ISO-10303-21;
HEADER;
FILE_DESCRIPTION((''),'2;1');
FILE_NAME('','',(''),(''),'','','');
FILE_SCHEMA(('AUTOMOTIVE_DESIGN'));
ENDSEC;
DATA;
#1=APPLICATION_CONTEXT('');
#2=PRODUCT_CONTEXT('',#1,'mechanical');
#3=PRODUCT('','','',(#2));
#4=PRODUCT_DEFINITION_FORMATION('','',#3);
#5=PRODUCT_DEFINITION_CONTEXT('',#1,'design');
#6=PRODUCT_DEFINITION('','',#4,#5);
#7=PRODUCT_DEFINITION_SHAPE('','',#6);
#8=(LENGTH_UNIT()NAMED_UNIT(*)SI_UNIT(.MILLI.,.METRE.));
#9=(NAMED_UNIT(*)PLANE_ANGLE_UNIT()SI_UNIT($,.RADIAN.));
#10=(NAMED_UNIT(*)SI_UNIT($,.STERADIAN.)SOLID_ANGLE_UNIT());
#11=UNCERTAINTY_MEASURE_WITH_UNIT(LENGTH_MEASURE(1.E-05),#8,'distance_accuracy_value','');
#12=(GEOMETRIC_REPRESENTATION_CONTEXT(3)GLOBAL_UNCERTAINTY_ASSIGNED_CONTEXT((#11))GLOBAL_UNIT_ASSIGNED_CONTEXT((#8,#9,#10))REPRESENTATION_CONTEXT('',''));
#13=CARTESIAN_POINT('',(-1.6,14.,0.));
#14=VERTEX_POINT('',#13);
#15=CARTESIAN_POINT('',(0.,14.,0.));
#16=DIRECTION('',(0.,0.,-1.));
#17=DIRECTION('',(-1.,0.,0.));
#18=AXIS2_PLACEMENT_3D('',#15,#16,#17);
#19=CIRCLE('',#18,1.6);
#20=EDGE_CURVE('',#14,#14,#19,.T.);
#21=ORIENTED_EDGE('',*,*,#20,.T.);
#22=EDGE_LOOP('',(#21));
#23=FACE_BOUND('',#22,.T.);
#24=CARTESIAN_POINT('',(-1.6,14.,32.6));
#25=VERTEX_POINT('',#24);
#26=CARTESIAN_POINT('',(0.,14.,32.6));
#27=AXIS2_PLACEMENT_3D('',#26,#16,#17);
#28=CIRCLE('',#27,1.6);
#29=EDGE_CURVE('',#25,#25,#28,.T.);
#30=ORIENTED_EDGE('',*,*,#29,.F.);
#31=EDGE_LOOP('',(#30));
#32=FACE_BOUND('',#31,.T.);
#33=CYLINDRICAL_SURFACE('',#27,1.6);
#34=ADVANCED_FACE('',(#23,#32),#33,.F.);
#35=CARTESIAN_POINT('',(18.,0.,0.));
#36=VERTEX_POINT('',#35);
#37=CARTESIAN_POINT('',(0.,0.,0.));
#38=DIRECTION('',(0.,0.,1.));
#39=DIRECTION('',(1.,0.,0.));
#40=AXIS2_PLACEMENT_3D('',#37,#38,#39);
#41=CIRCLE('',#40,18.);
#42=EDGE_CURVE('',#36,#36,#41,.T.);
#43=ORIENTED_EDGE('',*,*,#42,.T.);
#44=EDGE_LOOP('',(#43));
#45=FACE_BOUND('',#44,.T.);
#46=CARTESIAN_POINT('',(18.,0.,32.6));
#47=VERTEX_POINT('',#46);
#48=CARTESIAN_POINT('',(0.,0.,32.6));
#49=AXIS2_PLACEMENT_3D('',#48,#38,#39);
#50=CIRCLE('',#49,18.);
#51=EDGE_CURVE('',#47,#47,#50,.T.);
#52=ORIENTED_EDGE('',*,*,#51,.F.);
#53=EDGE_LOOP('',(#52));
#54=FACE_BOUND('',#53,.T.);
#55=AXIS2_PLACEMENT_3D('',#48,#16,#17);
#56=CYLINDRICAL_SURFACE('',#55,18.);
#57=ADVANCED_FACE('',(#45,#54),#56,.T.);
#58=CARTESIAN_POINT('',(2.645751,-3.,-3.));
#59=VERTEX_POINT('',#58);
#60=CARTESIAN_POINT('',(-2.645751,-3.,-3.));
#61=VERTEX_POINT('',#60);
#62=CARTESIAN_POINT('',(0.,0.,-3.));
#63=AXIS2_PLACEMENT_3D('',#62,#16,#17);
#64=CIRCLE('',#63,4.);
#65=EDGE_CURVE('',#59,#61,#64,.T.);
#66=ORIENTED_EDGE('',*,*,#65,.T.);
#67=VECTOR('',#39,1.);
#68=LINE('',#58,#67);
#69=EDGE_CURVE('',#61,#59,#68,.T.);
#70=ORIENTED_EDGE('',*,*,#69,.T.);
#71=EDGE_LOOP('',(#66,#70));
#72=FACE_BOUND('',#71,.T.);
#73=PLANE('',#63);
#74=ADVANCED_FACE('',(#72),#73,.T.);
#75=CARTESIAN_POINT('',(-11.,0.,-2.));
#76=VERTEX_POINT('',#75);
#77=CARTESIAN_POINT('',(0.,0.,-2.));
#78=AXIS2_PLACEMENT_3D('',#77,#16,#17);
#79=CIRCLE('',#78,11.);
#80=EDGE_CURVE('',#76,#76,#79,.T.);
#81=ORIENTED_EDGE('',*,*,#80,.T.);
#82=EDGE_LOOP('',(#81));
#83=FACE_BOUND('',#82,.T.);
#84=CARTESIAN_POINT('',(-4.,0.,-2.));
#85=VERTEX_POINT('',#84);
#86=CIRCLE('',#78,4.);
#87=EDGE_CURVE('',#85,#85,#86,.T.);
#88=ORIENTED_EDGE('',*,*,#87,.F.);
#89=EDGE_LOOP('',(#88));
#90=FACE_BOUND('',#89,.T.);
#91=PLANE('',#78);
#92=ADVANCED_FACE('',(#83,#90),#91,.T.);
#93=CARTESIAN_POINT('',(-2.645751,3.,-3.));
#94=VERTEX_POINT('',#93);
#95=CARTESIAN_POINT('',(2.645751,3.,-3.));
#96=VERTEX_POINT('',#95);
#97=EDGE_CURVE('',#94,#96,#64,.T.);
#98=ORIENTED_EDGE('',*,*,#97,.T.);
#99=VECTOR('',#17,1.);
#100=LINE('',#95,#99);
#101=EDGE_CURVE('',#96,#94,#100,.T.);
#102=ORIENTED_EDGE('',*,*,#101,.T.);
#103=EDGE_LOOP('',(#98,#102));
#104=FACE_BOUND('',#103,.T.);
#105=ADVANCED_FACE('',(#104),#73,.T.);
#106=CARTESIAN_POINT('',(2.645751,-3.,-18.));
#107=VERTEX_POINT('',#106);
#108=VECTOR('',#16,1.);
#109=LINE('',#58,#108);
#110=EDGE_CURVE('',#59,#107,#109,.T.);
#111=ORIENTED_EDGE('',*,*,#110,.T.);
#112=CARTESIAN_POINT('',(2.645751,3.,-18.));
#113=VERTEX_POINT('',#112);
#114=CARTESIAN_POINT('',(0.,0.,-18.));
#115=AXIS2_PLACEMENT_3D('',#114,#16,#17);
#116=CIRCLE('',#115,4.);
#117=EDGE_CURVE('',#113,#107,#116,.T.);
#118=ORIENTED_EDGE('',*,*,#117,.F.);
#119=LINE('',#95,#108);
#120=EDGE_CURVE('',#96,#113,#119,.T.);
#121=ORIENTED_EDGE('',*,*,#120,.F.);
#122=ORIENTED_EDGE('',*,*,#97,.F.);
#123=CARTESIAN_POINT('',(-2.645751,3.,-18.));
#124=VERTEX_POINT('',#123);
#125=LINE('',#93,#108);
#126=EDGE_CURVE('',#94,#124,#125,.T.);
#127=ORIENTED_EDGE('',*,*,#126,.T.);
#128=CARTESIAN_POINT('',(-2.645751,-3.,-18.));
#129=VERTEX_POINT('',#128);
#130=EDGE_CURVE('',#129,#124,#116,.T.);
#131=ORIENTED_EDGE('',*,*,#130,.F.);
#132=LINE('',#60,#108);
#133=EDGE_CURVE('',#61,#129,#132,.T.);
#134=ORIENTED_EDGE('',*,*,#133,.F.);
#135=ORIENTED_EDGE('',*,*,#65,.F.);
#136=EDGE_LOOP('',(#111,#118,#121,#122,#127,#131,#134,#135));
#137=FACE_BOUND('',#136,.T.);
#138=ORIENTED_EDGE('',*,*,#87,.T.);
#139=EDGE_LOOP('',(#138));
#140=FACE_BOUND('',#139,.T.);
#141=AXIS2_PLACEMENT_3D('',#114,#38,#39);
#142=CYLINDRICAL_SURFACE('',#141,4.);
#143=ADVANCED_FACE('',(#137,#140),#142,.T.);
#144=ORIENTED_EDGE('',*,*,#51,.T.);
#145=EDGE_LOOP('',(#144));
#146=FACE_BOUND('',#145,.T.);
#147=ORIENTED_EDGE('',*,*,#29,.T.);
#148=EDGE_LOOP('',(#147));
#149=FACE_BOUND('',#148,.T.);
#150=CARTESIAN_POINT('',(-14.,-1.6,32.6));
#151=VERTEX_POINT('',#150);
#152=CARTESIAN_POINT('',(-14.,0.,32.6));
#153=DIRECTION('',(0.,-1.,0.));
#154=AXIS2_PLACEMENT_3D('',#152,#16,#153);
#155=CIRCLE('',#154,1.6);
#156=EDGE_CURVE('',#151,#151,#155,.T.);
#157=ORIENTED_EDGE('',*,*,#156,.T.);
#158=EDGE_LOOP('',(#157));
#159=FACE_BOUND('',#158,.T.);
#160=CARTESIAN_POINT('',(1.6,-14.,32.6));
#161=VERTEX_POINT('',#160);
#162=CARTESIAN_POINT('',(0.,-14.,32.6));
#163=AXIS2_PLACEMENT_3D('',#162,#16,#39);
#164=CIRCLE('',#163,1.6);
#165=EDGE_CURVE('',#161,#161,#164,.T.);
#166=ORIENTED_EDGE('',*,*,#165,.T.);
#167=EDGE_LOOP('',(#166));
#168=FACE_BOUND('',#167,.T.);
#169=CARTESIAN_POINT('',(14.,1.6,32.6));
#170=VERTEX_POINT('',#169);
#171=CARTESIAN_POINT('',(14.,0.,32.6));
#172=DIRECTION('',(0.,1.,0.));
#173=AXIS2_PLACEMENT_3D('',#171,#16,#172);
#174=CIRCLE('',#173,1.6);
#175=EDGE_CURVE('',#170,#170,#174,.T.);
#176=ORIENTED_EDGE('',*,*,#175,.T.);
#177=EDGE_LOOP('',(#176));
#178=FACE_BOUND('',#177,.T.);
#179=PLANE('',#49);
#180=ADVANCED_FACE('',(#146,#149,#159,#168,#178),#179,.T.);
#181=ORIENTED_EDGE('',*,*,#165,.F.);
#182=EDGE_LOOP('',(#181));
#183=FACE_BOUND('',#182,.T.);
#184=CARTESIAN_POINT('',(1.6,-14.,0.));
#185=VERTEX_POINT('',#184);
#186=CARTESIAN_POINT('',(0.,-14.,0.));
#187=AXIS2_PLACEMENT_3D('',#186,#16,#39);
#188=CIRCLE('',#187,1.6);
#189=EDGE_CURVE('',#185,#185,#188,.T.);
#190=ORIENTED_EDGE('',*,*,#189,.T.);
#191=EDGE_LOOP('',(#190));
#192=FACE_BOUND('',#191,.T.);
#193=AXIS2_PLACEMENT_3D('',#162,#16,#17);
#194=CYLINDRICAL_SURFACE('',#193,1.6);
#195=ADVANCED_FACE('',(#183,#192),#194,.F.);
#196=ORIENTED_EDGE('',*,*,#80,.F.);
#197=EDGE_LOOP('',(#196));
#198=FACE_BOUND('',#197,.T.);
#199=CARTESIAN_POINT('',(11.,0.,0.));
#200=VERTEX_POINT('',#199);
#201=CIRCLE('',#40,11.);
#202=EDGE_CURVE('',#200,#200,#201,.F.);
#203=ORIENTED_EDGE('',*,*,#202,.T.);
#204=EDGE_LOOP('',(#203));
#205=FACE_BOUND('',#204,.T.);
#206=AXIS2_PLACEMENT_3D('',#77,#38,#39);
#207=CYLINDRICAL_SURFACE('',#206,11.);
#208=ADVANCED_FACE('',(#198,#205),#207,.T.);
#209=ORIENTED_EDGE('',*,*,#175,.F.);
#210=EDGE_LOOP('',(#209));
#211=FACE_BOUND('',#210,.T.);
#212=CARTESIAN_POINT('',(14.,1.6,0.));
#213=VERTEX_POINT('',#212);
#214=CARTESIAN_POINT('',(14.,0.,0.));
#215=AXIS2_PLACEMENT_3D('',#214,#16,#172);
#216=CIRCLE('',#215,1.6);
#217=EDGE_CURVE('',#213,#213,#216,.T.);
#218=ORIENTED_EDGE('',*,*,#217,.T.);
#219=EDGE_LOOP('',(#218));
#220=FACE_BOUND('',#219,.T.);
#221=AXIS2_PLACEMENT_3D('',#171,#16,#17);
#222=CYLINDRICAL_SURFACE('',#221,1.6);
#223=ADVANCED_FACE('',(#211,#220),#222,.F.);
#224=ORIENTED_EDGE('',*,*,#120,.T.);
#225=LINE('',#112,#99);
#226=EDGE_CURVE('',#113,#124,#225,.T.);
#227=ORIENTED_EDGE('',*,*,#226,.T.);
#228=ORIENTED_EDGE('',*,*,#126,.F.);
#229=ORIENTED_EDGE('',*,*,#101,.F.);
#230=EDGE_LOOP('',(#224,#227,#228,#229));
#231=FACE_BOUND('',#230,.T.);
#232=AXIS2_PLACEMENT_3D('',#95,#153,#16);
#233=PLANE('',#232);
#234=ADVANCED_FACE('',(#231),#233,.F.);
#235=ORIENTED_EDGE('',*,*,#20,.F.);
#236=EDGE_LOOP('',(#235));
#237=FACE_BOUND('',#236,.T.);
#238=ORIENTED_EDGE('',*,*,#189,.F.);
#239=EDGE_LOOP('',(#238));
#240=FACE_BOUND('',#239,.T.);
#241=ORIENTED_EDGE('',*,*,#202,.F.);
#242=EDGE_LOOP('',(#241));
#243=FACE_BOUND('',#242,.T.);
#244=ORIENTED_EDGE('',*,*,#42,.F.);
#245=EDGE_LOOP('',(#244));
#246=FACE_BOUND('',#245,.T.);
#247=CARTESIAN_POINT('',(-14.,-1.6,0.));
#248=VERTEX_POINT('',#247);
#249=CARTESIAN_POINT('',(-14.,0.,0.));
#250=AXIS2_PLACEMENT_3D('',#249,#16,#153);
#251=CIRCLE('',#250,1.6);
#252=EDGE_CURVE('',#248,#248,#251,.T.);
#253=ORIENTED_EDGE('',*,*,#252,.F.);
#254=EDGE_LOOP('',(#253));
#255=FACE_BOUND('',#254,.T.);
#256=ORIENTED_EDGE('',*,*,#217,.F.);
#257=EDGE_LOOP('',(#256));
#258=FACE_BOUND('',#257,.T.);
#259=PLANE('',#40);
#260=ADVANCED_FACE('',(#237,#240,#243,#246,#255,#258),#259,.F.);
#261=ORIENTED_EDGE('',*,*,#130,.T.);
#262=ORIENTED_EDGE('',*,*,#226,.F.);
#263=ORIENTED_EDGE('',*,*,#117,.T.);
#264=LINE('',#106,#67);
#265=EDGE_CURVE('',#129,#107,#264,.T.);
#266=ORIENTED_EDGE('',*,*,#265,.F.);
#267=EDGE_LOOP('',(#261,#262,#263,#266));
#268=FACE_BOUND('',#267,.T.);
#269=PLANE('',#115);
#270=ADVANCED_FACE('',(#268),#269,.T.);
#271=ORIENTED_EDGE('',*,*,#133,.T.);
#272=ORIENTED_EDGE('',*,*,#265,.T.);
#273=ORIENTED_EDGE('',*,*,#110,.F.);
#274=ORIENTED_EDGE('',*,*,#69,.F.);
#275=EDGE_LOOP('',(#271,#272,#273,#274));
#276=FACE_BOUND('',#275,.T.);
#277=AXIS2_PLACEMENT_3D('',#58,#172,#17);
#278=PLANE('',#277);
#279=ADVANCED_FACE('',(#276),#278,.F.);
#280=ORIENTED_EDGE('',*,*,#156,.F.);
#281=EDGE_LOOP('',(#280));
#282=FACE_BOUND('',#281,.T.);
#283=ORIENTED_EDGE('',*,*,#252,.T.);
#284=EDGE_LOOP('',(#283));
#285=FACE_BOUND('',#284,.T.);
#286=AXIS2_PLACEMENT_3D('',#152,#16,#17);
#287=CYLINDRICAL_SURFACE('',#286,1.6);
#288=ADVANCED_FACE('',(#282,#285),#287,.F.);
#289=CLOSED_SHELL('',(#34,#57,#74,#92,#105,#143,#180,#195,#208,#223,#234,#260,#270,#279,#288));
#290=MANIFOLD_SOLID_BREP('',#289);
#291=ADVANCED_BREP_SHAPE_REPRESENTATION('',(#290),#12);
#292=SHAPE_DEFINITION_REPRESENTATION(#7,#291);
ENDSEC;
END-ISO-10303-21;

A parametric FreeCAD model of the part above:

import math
import FreeCAD as App
import Part
import Sketcher
Q = App.Units.Quantity

doc = App.newDocument("Part")
params = doc.addObject("Spreadsheet::Sheet", "Params")
for row, (alias, value) in enumerate([
    ("sketch1_diameter", "36 mm"),
    ("pad1_length", "32.6 mm"),
    ("sketch2_diameter", "3.2 mm"),
    ("sketch3_diameter", "22 mm"),
    ("pad2_length", "2 mm"),
    ("sketch4_diameter", "8 mm"),
    ("pad3_length", "16 mm"),
    ("sketch5_radius", "4 mm"),
    ("pocket2_length", "15 mm"),
], start=1):
    params.set(f"A{row}", alias)
    params.set(f"B{row}", "=" + value)
    params.setAlias(f"B{row}", alias)

body = doc.addObject("PartDesign::Body", "Body")

sketch1 = body.newObject("Sketcher::SketchObject", "Sketch")
sketch1.AttachmentSupport = (doc.getObject("XY_Plane"), [""])
sketch1.MapMode = "FlatFace"
sketch1.addGeometry(Part.Circle(App.Vector(0, 0, 0), App.Vector(0, 0, 1), 18), False)
sketch1.addConstraint(Sketcher.Constraint("Coincident", 0, 3, -1, 1))
sketch1.addConstraint(Sketcher.Constraint("Diameter", 0, Q("36 mm")))
sketch1.setExpression("Constraints[1]", "Params.sketch1_diameter")
pad1 = body.newObject("PartDesign::Pad", "Pad")
pad1.Profile = sketch1
pad1.setExpression("Length", "Params.pad1_length")

sketch2 = body.newObject("Sketcher::SketchObject", "Sketch001")
sketch2.AttachmentSupport = (doc.getObject("XY_Plane"), [""])
sketch2.MapMode = "FlatFace"
sketch2.addGeometry(Part.Circle(App.Vector(0, 14, 0), App.Vector(0, 0, 1), 1.6), False)
sketch2.addConstraint(Sketcher.Constraint("PointOnObject", 0, 3, -2))
sketch2.addConstraint(Sketcher.Constraint("Diameter", 0, Q("3.2 mm")))
sketch2.addConstraint(Sketcher.Constraint("DistanceY", -1, 1, 0, 3, Q("14 mm")))
sketch2.setExpression("Constraints[1]", "Params.sketch2_diameter")
pocket1 = body.newObject("PartDesign::Pocket", "Pocket")
pocket1.Profile = sketch2
pocket1.Type = "ThroughAll"
pocket1.Reversed = True
doc.recompute()

polarpattern = body.newObject("PartDesign::PolarPattern", "PolarPattern")
polarpattern.Originals = [pocket1]
polarpattern.Axis = (doc.getObject("Z_Axis"), [""])
polarpattern.Angle = 360
polarpattern.Occurrences = 4
body.Tip = polarpattern

sketch3 = body.newObject("Sketcher::SketchObject", "Sketch002")
sketch3.AttachmentSupport = (doc.getObject("XY_Plane"), [""])
sketch3.MapMode = "FlatFace"
sketch3.addGeometry(Part.Circle(App.Vector(0, 0, 0), App.Vector(0, 0, 1), 11), False)
sketch3.addConstraint(Sketcher.Constraint("Coincident", 0, 3, -1, 1))
sketch3.addConstraint(Sketcher.Constraint("Diameter", 0, Q("22 mm")))
sketch3.setExpression("Constraints[1]", "Params.sketch3_diameter")
pad2 = body.newObject("PartDesign::Pad", "Pad001")
pad2.Profile = sketch3
pad2.setExpression("Length", "Params.pad2_length")
pad2.Reversed = True

sketch4 = body.newObject("Sketcher::SketchObject", "Sketch003")
sketch4.AttachmentSupport = (doc.getObject("XY_Plane"), [""])
sketch4.MapMode = "FlatFace"
sketch4.AttachmentOffset = App.Placement(App.Vector(0, 0, -2), App.Rotation())
sketch4.addGeometry(Part.Circle(App.Vector(0, 0, 0), App.Vector(0, 0, 1), 4), False)
sketch4.addConstraint(Sketcher.Constraint("Coincident", 0, 3, -1, 1))
sketch4.addConstraint(Sketcher.Constraint("Diameter", 0, Q("8 mm")))
sketch4.setExpression("Constraints[1]", "Params.sketch4_diameter")
pad3 = body.newObject("PartDesign::Pad", "Pad002")
pad3.Profile = sketch4
pad3.setExpression("Length", "Params.pad3_length")
pad3.Reversed = True

sketch5 = body.newObject("Sketcher::SketchObject", "Sketch004")
sketch5.AttachmentSupport = (doc.getObject("XY_Plane"), [""])
sketch5.MapMode = "FlatFace"
sketch5.AttachmentOffset = App.Placement(App.Vector(0, 0, -3), App.Rotation())
sketch5.addGeometry(Part.LineSegment(App.Vector(2.6, 3, 0), App.Vector(-2.6, 3, 0)), False)
sketch5.addGeometry(Part.ArcOfCircle(Part.Circle(App.Vector(0, 0, 0), App.Vector(0, 0, 1), 4), math.radians(49), math.radians(131)), False)
sketch5.addGeometry(Part.LineSegment(App.Vector(-2.6, -3, 0), App.Vector(2.6, -3, 0)), False)
sketch5.addGeometry(Part.ArcOfCircle(Part.Circle(App.Vector(0, 0, 0), App.Vector(0, 0, 1), 4), math.radians(-131), math.radians(-49)), False)
sketch5.addConstraint(Sketcher.Constraint("Coincident", 0, 1, 1, 1))
sketch5.addConstraint(Sketcher.Constraint("Coincident", 1, 2, 0, 2))
sketch5.addConstraint(Sketcher.Constraint("Coincident", 2, 1, 3, 1))
sketch5.addConstraint(Sketcher.Constraint("Coincident", 3, 2, 2, 2))
sketch5.addConstraint(Sketcher.Constraint("Horizontal", 0))
sketch5.addConstraint(Sketcher.Constraint("Horizontal", 2))
sketch5.addConstraint(Sketcher.Constraint("Coincident", 1, 3, -1, 1))
sketch5.addConstraint(Sketcher.Constraint("Coincident", 3, 3, -1, 1))
sketch5.addConstraint(Sketcher.Constraint("Equal", 1, 3))
sketch5.addConstraint(Sketcher.Constraint("Vertical", 1, 2, 2, 1))
sketch5.addConstraint(Sketcher.Constraint("Radius", 1, Q("4 mm")))
sketch5.addConstraint(Sketcher.Constraint("DistanceY", -1, 1, 0, 1, Q("3 mm")))
sketch5.setExpression("Constraints[10]", "Params.sketch5_radius")
pocket2 = body.newObject("PartDesign::Pocket", "Pocket001")
pocket2.Profile = sketch5
pocket2.setExpression("Length", "Params.pocket2_length")

doc.recompute()
